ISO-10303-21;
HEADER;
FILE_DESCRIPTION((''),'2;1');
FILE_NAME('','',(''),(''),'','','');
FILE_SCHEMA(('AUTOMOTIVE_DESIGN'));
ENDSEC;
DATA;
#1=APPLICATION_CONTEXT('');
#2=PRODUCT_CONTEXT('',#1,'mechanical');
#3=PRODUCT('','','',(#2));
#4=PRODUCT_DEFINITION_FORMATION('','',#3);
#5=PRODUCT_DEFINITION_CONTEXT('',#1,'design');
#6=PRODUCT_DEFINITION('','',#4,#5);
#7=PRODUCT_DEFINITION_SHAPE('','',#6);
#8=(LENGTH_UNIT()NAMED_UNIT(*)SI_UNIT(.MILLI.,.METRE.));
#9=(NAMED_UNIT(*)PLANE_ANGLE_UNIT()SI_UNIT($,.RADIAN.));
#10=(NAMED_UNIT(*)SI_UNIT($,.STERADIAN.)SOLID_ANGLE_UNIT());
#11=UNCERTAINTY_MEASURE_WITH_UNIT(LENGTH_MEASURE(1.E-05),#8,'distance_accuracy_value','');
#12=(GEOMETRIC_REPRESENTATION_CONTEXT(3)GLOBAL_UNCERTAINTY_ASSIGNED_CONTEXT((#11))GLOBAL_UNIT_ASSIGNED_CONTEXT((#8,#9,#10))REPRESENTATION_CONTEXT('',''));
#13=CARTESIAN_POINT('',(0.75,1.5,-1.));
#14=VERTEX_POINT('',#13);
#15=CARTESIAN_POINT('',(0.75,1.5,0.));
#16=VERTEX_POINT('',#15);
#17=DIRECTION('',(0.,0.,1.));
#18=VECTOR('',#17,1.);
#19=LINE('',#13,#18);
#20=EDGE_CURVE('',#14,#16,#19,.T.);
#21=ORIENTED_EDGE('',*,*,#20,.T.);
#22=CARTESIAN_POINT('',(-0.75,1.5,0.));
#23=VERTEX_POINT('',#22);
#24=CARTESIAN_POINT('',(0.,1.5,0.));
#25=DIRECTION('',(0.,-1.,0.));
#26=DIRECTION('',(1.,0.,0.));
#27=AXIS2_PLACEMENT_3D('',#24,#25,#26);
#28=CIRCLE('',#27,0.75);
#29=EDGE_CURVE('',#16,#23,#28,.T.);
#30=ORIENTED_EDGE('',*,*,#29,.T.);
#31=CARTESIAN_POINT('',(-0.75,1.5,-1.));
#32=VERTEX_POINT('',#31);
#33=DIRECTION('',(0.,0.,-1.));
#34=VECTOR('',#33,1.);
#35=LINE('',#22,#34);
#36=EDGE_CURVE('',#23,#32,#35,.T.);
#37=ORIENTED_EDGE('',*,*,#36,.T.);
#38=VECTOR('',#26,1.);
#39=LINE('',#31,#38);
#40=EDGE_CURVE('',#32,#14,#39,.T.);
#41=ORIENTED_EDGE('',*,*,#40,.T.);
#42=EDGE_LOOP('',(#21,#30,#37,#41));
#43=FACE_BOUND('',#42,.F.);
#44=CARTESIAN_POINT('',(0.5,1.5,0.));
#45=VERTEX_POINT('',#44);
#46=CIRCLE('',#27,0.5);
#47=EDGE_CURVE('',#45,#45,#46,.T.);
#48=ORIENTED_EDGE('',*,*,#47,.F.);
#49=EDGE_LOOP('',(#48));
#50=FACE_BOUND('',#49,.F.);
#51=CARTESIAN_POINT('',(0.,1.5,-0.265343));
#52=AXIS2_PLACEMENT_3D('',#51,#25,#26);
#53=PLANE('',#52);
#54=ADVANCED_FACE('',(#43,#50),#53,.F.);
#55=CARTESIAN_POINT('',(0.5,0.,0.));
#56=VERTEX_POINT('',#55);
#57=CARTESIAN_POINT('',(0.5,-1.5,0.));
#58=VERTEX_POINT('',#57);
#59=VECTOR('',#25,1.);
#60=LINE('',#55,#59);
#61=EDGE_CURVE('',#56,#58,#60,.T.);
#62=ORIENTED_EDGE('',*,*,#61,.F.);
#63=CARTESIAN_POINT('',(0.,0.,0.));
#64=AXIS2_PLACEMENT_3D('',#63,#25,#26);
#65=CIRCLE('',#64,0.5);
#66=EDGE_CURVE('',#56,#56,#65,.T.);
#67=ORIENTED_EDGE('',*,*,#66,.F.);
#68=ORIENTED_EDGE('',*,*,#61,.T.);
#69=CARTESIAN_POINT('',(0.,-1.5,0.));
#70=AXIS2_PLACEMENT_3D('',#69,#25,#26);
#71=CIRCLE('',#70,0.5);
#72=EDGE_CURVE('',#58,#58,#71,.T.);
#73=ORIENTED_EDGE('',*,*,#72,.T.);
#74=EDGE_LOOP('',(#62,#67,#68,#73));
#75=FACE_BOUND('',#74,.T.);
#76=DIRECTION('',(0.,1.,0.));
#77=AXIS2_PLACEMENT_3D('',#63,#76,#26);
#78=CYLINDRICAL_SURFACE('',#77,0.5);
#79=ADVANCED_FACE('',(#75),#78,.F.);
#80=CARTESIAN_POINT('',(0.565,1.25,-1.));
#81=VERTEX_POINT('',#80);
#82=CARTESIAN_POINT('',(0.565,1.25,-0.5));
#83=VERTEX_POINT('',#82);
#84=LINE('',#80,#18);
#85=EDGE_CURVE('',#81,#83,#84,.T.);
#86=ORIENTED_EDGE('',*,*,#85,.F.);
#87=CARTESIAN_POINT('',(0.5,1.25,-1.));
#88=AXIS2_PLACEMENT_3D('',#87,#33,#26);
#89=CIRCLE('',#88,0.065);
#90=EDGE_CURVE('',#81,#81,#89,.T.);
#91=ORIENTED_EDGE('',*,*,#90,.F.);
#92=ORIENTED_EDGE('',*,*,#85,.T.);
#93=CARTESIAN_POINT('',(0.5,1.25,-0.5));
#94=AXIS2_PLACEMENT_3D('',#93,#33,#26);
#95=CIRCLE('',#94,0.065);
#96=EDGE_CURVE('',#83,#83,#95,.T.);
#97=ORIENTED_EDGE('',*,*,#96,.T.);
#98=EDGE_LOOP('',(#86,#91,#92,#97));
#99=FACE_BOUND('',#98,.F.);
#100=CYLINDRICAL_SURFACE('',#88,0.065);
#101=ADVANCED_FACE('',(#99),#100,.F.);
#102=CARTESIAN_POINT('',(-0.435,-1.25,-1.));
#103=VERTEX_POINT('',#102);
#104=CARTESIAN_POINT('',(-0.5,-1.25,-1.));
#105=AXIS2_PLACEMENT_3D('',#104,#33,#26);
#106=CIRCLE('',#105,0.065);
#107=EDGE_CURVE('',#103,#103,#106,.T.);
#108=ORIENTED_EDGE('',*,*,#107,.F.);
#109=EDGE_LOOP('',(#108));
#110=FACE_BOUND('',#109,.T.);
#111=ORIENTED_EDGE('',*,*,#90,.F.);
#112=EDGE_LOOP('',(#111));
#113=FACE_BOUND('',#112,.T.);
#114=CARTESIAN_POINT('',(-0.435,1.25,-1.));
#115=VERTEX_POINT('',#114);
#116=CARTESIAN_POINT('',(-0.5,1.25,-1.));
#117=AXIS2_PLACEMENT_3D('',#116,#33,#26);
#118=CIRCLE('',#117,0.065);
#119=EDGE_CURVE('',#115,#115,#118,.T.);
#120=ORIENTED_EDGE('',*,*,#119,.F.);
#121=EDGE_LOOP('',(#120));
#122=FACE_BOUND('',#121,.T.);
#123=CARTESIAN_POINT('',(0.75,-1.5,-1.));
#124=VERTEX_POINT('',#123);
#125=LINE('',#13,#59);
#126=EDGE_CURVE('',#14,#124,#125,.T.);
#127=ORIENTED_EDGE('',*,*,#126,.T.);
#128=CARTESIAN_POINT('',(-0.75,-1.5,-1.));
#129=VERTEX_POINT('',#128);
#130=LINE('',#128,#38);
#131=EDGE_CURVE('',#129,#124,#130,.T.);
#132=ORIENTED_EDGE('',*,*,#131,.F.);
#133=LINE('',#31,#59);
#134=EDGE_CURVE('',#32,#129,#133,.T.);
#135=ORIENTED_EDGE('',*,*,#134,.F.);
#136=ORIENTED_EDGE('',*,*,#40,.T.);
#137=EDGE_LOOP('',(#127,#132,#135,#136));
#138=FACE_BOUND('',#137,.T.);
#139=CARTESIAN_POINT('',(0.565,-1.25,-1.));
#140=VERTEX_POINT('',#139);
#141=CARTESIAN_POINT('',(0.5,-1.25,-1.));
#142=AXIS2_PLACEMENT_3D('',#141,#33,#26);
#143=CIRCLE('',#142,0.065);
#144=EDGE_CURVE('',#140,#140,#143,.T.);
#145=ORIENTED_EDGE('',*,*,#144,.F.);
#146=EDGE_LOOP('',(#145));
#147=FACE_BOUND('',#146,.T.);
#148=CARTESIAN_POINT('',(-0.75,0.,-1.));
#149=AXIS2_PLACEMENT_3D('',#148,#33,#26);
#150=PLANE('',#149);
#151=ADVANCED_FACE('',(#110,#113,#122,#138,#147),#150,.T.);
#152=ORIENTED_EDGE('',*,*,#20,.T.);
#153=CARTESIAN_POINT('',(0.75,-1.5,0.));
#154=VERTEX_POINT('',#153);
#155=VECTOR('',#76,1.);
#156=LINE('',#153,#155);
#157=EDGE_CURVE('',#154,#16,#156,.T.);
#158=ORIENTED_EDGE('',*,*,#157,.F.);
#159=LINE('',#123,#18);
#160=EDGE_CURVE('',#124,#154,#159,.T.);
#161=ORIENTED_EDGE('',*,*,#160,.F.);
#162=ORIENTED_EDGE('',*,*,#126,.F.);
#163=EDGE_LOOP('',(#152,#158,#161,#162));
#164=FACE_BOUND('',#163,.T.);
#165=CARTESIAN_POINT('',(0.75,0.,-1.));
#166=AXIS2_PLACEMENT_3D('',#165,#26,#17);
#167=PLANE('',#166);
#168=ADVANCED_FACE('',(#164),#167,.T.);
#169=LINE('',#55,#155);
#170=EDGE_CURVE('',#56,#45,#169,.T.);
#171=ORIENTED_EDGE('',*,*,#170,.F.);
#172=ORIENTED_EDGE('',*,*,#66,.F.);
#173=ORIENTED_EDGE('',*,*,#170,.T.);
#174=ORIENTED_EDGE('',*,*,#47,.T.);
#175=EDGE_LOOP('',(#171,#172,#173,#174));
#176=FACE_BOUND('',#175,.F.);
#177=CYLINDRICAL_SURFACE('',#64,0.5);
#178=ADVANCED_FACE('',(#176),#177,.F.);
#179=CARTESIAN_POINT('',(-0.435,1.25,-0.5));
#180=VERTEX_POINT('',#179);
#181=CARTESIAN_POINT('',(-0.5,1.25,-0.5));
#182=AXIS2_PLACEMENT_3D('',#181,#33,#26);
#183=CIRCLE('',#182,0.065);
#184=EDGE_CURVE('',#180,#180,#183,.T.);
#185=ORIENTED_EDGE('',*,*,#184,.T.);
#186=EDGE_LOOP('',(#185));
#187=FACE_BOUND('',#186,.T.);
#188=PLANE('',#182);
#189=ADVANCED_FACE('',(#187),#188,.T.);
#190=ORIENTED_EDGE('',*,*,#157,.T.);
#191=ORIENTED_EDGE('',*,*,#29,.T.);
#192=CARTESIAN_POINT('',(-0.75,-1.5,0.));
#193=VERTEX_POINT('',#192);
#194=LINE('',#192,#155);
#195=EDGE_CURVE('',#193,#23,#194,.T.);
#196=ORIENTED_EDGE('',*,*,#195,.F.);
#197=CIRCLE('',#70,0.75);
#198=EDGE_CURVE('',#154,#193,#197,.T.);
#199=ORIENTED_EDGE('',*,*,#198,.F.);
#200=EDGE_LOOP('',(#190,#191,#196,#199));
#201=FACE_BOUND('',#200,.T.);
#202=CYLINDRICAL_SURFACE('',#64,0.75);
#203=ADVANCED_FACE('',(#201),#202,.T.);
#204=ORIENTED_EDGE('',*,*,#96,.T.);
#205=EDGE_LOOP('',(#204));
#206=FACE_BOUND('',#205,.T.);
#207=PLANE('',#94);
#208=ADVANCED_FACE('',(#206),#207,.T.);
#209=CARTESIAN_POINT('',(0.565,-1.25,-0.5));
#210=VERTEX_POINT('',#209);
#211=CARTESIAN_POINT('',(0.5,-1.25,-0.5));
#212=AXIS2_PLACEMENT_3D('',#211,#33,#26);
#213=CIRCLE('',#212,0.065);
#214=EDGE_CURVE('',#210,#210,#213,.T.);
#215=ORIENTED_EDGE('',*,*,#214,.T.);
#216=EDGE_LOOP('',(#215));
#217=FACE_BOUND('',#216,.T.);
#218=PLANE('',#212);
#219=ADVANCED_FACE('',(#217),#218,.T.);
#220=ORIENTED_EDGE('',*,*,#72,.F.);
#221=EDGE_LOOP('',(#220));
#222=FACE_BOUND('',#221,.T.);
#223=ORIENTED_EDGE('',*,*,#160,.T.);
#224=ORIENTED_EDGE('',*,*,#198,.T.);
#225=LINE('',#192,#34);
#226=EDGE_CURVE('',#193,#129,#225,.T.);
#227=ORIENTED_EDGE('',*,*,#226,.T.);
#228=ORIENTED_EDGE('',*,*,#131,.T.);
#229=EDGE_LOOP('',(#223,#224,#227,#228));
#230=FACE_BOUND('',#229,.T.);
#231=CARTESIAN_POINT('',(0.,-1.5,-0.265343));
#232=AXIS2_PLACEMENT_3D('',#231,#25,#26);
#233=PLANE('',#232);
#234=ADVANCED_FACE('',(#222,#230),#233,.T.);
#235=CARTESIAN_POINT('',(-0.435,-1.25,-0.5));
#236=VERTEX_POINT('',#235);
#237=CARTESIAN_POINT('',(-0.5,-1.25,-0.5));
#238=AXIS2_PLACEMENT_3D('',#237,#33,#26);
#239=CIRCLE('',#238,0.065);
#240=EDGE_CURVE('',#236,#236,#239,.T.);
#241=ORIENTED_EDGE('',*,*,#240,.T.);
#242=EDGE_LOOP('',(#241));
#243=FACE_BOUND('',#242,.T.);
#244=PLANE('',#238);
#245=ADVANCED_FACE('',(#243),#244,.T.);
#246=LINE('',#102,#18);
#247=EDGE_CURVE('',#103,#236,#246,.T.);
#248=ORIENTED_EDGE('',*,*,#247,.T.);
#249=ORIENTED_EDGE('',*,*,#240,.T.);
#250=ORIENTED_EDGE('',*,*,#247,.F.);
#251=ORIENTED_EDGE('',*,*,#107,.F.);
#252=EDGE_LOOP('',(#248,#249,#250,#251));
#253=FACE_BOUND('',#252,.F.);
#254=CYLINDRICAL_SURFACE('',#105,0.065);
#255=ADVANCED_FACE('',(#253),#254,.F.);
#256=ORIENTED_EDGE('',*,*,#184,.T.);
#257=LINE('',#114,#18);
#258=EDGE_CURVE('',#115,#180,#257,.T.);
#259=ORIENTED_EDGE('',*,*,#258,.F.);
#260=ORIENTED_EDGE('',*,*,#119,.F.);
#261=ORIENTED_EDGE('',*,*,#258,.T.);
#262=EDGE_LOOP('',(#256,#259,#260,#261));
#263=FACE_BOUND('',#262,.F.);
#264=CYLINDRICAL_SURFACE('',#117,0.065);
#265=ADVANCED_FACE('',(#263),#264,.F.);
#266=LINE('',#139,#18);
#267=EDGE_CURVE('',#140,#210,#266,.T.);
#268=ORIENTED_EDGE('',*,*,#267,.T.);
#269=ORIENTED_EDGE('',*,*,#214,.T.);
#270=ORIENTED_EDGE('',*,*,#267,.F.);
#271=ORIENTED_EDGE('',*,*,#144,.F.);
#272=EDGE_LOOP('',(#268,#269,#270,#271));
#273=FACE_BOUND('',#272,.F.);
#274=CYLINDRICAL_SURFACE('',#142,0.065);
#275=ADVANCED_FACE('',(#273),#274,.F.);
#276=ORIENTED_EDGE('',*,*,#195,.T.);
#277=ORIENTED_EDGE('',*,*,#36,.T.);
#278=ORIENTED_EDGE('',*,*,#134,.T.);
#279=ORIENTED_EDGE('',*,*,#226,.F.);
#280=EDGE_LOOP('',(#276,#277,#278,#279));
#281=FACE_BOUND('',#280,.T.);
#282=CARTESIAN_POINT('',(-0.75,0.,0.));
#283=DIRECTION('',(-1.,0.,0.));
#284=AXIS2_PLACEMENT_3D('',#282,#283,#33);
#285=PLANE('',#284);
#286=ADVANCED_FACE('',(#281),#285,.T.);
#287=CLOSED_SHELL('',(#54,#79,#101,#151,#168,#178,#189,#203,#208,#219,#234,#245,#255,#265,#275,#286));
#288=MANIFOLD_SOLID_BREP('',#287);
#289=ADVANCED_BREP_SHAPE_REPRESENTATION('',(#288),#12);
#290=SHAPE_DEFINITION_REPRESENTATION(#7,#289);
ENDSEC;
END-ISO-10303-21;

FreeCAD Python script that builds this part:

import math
import FreeCAD as App
import Part
import Sketcher
Q = App.Units.Quantity

doc = App.newDocument("Part")
body = doc.addObject("PartDesign::Body", "Body")

sketch1 = doc.addObject("Sketcher::SketchObject", "Sketch")
body.addObject(sketch1)
sketch1.AttachmentSupport = (doc.XZ_Plane, [""])
sketch1.MapMode = "FlatFace"
sketch1.addGeometry([
    Part.LineSegment(App.Vector(-0.8, 0, 0), App.Vector(-0.8, -1, 0)),
    Part.LineSegment(App.Vector(-0.8, -1, 0), App.Vector(0.8, -1, 0)),
    Part.LineSegment(App.Vector(0.8, -1, 0), App.Vector(0.8, 0, 0)),
    Part.ArcOfCircle(Part.Circle(App.Vector(0, 0, 0), App.Vector(0, 0, 1), 0.8), math.radians(0), math.radians(180)),
    Part.Circle(App.Vector(0, 0, 0), App.Vector(0, 0, 1), 0.5),
], False)
sketch1.addConstraint([
    Sketcher.Constraint("Coincident", 0, 2, 1, 1),
    Sketcher.Constraint("Coincident", 1, 2, 2, 1),
    Sketcher.Constraint("Tangent", 2, 2, 3, 1),
    Sketcher.Constraint("Tangent", 3, 2, 0, 1),
    Sketcher.Constraint("Vertical", 0),
    Sketcher.Constraint("Horizontal", 1),
    Sketcher.Constraint("Vertical", 2),
    Sketcher.Constraint("Coincident", 3, 3, -1, 1),
    Sketcher.Constraint("Coincident", 4, 3, -1, 1),
    Sketcher.Constraint("Diameter", 4, Q("1 mm")),
    Sketcher.Constraint("DistanceY", 0, 2, 0, 1, Q("1 mm")),
    Sketcher.Constraint("Radius", 3, Q("0.75 mm")),
])
pad1 = doc.addObject("PartDesign::Pad", "Pad")
body.addObject(pad1)
pad1.Profile = sketch1
pad1.Type = "TwoLengths"
pad1.Length = 1.5
pad1.Length2 = 1.5

sketch2 = doc.addObject("Sketcher::SketchObject", "Sketch001")
body.addObject(sketch2)
sketch2.AttachmentSupport = (doc.XY_Plane, [""])
sketch2.MapMode = "FlatFace"
sketch2.AttachmentOffset = App.Placement(App.Vector(0, 0, -1), App.Rotation())
sketch2.addGeometry([
    Part.Circle(App.Vector(-0.5, 1.25, 0), App.Vector(0, 0, 1), 0.07),
    Part.Circle(App.Vector(0.5, 1.25, 0), App.Vector(0, 0, 1), 0.07),
    Part.Circle(App.Vector(0.5, -1.25, 0), App.Vector(0, 0, 1), 0.07),
    Part.Circle(App.Vector(-0.5, -1.25, 0), App.Vector(0, 0, 1), 0.07),
], False)
sketch2.addConstraint([
    Sketcher.Constraint("Equal", 0, 1),
    Sketcher.Constraint("Equal", 1, 2),
    Sketcher.Constraint("Equal", 2, 3),
    Sketcher.Constraint("Symmetric", 0, 3, 2, 3, -1, 1),
    Sketcher.Constraint("Symmetric", 1, 3, 3, 3, -1, 1),
    Sketcher.Constraint("Symmetric", 0, 3, 1, 3, -2),
    Sketcher.Constraint("Diameter", 0, Q("0.13 mm")),
    Sketcher.Constraint("DistanceX", 0, 3, 1, 3, Q("1 mm")),
    Sketcher.Constraint("DistanceY", 2, 3, 1, 3, Q("2.5 mm")),
])
pocket1 = doc.addObject("PartDesign::Pocket", "Pocket")
body.addObject(pocket1)
pocket1.Profile = sketch2
pocket1.Length = 0.5
pocket1.Reversed = True

doc.recompute()
